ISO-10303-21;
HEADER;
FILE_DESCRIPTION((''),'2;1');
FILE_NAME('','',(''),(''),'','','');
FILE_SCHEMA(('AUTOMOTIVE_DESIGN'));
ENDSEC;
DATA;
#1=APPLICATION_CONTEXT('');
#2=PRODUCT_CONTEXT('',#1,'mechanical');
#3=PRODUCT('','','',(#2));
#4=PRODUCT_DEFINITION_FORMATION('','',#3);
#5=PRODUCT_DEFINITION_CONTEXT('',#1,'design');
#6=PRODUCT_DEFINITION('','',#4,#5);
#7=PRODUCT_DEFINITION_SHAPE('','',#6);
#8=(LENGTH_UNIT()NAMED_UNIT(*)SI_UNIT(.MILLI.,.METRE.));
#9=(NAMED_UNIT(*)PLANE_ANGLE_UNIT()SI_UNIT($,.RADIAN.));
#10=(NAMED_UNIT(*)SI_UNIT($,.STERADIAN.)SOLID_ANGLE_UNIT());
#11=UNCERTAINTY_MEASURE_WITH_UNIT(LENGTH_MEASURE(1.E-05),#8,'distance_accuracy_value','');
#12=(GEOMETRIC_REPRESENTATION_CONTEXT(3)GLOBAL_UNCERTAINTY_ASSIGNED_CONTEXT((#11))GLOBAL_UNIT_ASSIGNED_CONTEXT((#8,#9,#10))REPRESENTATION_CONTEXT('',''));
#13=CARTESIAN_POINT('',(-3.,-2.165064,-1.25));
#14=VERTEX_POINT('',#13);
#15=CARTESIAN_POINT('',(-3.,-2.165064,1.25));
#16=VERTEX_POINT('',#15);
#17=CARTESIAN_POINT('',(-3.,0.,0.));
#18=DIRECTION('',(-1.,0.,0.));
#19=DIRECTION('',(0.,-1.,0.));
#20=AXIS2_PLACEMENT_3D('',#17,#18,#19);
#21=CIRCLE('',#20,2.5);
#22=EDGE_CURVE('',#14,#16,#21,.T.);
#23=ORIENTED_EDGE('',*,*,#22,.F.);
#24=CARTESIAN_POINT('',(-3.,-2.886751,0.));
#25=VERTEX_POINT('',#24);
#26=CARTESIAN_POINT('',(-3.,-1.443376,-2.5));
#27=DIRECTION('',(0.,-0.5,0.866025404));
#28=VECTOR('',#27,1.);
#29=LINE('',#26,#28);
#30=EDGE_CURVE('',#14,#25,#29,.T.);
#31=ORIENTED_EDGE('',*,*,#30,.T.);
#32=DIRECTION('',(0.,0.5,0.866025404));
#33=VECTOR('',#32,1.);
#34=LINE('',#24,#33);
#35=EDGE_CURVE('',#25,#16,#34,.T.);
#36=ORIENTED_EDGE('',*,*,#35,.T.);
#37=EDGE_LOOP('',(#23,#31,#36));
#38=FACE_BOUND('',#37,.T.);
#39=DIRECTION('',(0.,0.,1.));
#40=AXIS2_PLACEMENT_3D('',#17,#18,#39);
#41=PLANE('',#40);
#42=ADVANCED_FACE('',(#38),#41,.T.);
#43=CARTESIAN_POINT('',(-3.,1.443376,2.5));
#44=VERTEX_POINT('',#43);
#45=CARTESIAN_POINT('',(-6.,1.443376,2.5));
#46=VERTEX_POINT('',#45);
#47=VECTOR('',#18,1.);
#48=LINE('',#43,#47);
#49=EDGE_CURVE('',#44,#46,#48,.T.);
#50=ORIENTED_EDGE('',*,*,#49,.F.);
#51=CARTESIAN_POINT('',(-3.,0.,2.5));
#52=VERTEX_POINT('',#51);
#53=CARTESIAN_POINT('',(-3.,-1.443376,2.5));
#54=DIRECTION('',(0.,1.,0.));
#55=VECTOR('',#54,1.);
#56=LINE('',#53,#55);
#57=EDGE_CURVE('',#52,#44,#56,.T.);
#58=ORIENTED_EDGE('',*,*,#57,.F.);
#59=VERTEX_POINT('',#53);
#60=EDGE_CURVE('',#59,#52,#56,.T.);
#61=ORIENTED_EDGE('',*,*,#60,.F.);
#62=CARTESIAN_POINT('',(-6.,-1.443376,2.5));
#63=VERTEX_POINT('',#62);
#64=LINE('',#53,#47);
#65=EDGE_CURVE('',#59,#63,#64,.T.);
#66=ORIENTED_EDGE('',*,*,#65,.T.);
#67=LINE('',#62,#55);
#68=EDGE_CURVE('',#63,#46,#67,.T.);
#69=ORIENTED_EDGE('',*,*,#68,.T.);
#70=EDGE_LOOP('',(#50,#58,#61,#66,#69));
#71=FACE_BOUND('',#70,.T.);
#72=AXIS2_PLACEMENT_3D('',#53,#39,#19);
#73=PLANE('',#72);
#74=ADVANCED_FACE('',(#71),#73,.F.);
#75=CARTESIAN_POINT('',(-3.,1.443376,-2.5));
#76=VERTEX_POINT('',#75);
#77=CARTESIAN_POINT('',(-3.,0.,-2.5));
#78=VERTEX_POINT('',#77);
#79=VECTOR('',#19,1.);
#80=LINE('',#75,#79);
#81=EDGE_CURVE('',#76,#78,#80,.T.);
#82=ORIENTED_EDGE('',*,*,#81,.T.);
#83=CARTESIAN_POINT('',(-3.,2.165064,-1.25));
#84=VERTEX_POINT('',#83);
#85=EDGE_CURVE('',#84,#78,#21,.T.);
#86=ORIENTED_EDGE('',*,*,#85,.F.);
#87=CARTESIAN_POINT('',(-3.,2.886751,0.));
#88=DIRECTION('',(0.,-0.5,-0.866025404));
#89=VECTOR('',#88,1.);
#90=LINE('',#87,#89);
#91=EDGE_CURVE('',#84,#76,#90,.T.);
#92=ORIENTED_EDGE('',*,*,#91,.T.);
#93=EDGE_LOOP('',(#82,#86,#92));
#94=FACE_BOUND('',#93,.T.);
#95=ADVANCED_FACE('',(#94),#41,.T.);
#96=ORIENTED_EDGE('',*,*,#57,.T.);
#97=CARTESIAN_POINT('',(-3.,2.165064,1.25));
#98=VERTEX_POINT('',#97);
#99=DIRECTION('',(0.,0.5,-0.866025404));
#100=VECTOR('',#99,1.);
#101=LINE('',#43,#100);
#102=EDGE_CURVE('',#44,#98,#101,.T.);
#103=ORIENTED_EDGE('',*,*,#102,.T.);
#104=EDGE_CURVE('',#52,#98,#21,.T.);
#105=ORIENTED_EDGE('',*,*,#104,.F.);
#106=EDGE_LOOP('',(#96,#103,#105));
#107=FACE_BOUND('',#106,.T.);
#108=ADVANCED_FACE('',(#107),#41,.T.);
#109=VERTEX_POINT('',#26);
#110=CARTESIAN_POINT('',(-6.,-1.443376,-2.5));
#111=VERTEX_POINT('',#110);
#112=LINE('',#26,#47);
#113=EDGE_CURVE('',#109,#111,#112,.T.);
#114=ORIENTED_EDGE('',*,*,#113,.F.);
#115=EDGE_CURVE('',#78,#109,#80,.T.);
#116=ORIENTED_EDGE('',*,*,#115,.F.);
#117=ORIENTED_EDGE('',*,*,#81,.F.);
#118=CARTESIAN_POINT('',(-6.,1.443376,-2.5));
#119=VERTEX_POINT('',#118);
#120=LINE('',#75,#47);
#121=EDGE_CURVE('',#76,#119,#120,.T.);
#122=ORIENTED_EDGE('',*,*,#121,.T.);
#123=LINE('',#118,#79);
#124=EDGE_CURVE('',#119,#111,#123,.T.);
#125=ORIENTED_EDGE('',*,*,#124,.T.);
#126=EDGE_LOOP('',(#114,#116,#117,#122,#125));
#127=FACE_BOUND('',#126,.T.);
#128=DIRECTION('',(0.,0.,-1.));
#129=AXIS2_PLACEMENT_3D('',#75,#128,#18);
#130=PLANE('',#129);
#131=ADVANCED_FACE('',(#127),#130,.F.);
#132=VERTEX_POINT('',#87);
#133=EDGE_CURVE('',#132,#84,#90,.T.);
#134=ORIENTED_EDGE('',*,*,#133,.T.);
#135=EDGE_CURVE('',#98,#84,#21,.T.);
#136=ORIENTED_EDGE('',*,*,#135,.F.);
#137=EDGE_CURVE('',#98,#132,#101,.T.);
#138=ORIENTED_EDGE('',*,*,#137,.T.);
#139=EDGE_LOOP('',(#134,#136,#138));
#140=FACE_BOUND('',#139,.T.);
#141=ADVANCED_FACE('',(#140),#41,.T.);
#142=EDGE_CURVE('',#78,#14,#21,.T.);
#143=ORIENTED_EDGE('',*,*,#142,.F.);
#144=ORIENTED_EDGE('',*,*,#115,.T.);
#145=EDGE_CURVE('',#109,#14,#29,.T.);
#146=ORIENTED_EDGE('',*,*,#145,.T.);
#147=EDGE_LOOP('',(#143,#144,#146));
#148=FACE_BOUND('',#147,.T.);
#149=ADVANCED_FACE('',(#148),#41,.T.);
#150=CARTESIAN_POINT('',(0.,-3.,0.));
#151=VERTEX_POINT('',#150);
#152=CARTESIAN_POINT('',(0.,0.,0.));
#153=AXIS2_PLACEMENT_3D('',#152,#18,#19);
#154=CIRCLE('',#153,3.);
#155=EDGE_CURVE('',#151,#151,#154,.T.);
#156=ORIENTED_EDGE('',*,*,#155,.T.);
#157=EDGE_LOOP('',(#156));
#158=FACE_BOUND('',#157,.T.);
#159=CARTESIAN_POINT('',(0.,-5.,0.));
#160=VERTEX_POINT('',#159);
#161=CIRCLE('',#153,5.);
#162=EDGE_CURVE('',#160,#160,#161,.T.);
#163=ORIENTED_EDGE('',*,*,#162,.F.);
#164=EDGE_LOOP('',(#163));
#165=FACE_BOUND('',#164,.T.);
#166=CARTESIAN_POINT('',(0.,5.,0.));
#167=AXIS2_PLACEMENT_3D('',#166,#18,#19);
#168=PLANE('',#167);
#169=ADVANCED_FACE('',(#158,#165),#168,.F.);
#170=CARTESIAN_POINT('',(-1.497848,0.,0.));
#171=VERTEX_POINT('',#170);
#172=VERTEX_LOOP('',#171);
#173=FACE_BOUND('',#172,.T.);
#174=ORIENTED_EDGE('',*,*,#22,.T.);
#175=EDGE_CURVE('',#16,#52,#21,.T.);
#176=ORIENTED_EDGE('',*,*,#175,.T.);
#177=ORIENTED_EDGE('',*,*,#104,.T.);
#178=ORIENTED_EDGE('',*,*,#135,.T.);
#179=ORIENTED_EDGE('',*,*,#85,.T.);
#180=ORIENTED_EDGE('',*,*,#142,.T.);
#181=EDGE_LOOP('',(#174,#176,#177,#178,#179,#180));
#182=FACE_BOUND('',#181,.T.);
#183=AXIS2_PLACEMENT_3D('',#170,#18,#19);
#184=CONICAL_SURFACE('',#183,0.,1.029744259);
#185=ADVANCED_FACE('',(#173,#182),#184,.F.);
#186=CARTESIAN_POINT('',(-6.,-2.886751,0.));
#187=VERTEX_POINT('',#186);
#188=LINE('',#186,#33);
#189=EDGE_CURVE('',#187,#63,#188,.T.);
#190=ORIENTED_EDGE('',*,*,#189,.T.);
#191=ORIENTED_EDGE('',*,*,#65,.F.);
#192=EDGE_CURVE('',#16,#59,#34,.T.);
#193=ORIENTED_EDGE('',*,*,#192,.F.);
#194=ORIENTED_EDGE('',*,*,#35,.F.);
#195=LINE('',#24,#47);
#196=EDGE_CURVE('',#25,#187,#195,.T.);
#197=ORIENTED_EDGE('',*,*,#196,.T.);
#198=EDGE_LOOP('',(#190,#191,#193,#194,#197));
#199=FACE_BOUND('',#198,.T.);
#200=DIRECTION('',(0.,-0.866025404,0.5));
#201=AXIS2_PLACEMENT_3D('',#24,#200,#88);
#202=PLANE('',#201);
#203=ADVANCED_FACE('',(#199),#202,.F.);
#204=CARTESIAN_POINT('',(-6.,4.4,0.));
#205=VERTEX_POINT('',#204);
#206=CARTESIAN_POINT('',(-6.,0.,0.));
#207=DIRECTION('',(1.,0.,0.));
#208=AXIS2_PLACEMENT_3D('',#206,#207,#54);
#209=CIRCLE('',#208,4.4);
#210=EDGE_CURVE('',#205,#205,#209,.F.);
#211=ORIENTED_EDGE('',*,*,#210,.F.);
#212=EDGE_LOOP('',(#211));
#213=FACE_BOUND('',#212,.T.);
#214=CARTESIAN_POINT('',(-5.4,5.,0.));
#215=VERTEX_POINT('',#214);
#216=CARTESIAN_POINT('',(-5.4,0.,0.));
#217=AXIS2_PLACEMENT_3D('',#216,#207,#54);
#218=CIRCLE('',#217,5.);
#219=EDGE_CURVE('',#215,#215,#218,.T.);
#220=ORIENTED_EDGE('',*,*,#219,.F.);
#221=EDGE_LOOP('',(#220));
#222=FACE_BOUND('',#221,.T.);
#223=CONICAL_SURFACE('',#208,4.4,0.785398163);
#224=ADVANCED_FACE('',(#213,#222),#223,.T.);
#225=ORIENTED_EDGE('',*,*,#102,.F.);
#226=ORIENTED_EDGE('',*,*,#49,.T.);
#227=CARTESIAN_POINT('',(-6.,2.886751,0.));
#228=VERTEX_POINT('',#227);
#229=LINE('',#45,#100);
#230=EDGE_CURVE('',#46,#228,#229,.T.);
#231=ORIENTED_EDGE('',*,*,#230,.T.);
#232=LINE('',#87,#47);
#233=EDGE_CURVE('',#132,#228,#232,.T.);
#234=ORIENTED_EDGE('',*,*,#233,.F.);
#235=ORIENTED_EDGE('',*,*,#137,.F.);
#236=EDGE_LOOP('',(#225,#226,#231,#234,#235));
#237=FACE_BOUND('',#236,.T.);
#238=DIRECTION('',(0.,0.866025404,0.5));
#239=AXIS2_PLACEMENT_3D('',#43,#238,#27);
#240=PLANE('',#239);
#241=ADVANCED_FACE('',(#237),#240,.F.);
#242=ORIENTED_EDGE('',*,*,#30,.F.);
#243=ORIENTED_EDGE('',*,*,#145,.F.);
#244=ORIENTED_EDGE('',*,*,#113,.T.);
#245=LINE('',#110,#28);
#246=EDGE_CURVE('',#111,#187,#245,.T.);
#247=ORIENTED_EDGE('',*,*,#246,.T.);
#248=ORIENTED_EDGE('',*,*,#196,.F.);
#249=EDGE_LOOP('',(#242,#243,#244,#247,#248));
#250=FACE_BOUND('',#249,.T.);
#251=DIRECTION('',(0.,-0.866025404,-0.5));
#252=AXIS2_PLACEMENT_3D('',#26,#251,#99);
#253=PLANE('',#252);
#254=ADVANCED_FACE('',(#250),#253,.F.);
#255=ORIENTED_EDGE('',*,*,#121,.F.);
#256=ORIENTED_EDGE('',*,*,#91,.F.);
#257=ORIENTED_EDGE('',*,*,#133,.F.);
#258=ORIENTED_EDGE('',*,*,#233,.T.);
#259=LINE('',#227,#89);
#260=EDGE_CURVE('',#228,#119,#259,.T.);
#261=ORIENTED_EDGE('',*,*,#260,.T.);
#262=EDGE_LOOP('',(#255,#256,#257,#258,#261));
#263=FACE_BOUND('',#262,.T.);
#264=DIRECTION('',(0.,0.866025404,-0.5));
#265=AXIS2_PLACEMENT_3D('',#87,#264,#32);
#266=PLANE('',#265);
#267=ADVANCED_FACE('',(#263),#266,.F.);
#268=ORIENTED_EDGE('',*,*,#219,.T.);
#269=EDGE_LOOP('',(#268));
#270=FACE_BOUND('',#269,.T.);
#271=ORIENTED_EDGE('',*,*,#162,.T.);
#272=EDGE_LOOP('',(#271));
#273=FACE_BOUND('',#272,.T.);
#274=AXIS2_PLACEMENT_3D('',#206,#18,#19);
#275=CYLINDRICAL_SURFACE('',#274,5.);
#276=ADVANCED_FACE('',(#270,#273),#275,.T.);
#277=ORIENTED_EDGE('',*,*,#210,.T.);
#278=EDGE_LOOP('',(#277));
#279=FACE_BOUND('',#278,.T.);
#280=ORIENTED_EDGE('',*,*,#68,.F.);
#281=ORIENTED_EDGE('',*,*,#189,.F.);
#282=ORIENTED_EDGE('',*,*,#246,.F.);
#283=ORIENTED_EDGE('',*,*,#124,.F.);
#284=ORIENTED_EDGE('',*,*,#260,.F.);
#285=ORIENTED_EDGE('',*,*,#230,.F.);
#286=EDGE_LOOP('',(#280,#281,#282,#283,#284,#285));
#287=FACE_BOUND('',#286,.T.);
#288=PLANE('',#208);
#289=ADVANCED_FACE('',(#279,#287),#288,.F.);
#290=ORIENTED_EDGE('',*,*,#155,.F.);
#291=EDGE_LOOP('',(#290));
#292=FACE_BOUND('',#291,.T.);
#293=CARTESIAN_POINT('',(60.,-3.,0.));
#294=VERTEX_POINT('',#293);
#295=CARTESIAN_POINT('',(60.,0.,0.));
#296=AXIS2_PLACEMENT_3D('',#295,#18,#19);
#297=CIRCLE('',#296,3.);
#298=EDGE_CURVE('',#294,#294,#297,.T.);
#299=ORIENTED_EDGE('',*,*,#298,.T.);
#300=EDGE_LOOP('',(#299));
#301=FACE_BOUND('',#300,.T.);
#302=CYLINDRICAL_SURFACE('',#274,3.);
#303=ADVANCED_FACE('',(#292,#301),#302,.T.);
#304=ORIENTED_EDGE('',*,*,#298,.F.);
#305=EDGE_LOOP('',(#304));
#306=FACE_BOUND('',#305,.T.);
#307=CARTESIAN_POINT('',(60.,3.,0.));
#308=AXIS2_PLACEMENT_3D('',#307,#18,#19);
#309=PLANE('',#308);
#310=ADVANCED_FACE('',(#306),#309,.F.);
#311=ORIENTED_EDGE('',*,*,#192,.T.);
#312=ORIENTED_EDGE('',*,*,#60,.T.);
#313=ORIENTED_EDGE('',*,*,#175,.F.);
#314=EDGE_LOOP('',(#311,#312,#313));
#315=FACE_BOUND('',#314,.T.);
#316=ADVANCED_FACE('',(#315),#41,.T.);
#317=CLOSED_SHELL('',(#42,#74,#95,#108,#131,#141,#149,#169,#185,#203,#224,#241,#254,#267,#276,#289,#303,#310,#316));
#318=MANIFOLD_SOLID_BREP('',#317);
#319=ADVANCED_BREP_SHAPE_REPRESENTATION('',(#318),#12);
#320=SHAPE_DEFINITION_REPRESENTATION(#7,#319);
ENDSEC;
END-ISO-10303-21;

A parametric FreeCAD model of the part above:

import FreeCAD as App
import Part
import Sketcher
from FreeCAD import Vector
Q = App.Units.Quantity


def edges_at(feature, points):
    """Names of the edges that pass closest to the given points."""
    edges = feature.Shape.Edges
    near = lambda p: min(range(len(edges)), key=lambda i: edges[i].distToShape(Part.Vertex(*p))[0])
    return sorted({f"Edge{near(p) + 1}" for p in points})

doc = App.newDocument("Part")
body = doc.addObject("PartDesign::Body", "Body")

sketch1 = body.newObject("Sketcher::SketchObject", "Sketch")
sketch1.AttachmentSupport = (doc.getObject("XY_Plane"), [""])
sketch1.MapMode = "FlatFace"
sketch1.addGeometry(Part.LineSegment(Vector(-6, 5, 0), Vector(-6, 0, 0)), False)
sketch1.addGeometry(Part.LineSegment(Vector(-6, 0, 0), Vector(60, 0, 0)), False)
sketch1.addGeometry(Part.LineSegment(Vector(60, 0, 0), Vector(60, 3, 0)), False)
sketch1.addGeometry(Part.LineSegment(Vector(60, 3, 0), Vector(0, 3, 0)), False)
sketch1.addGeometry(Part.LineSegment(Vector(0, 3, 0), Vector(0, 5, 0)), False)
sketch1.addGeometry(Part.LineSegment(Vector(0, 5, 0), Vector(-6, 5, 0)), False)
sketch1.addConstraint(Sketcher.Constraint("Coincident", 0, 2, 1, 1))
sketch1.addConstraint(Sketcher.Constraint("Coincident", 1, 2, 2, 1))
sketch1.addConstraint(Sketcher.Constraint("Coincident", 2, 2, 3, 1))
sketch1.addConstraint(Sketcher.Constraint("Coincident", 3, 2, 4, 1))
sketch1.addConstraint(Sketcher.Constraint("Coincident", 4, 2, 5, 1))
sketch1.addConstraint(Sketcher.Constraint("Coincident", 5, 2, 0, 1))
sketch1.addConstraint(Sketcher.Constraint("Vertical", 0))
sketch1.addConstraint(Sketcher.Constraint("Horizontal", 1))
sketch1.addConstraint(Sketcher.Constraint("Vertical", 2))
sketch1.addConstraint(Sketcher.Constraint("Horizontal", 3))
sketch1.addConstraint(Sketcher.Constraint("Vertical", 4))
sketch1.addConstraint(Sketcher.Constraint("Horizontal", 5))
sketch1.addConstraint(Sketcher.Constraint("PointOnObject", 0, 2, -1))
sketch1.addConstraint(Sketcher.Constraint("PointOnObject", 3, 2, -2))
sketch1.addConstraint(Sketcher.Constraint("DistanceX", 1, 1, 1, 2, 66.0))
sketch1.addConstraint(Sketcher.Constraint("DistanceX", 3, 2, 3, 1, 60.0))
sketch1.addConstraint(Sketcher.Constraint("DistanceY", 0, 2, 0, 1, 5.0))
sketch1.addConstraint(Sketcher.Constraint("DistanceY", 2, 1, 2, 2, 3.0))
revolution = body.newObject("PartDesign::Revolution", "Revolution")
revolution.Profile = sketch1
revolution.ReferenceAxis = (sketch1, ["H_Axis"])
revolution.Angle = 360
doc.recompute()

chamfer = body.newObject("PartDesign::Chamfer", "Chamfer")
chamfer.Base = (revolution, edges_at(revolution, [(-6, 5, 0)]))
chamfer.Size = 0.6

sketch2 = body.newObject("Sketcher::SketchObject", "Sketch001")
sketch2.AttachmentSupport = (doc.getObject("XY_Plane"), [""])
sketch2.MapMode = "FlatFace"
sketch2.addGeometry(Part.LineSegment(Vector(-1.5, 0, 0), Vector(-3, 2.5, 0)), False)
sketch2.addGeometry(Part.LineSegment(Vector(-3, 2.5, 0), Vector(-6, 2.5, 0)), False)
sketch2.addGeometry(Part.LineSegment(Vector(-6, 2.5, 0), Vector(-6, 0, 0)), False)
sketch2.addGeometry(Part.LineSegment(Vector(-6, 0, 0), Vector(-1.5, 0, 0)), False)
sketch2.addConstraint(Sketcher.Constraint("Coincident", 0, 2, 1, 1))
sketch2.addConstraint(Sketcher.Constraint("Coincident", 1, 2, 2, 1))
sketch2.addConstraint(Sketcher.Constraint("Coincident", 2, 2, 3, 1))
sketch2.addConstraint(Sketcher.Constraint("Coincident", 3, 2, 0, 1))
sketch2.addConstraint(Sketcher.Constraint("Horizontal", 1))
sketch2.addConstraint(Sketcher.Constraint("Vertical", 2))
sketch2.addConstraint(Sketcher.Constraint("Horizontal", 3))
sketch2.addConstraint(Sketcher.Constraint("PointOnObject", 2, 2, -1))
sketch2.addConstraint(Sketcher.Constraint("DistanceX", 1, 2, 1, 1, 3.0))
sketch2.addConstraint(Sketcher.Constraint("Angle", 0, Q("121 deg")))
sketch2.addConstraint(Sketcher.Constraint("DistanceY", 2, 2, 2, 1, 2.5))
sketch2.addConstraint(Sketcher.Constraint("DistanceX", 0, 2, -1, 1, 3.0))
groove = body.newObject("PartDesign::Groove", "Groove")
groove.Profile = sketch2
groove.ReferenceAxis = (sketch2, ["H_Axis"])
groove.Angle = 360

sketch3 = body.newObject("Sketcher::SketchObject", "Sketch002")
sketch3.AttachmentSupport = (doc.getObject("YZ_Plane"), [""])
sketch3.MapMode = "FlatFace"
sketch3.AttachmentOffset = App.Placement(Vector(0, 0, -6), App.Rotation())
sketch3.addGeometry(Part.LineSegment(Vector(2.9, 0, 0), Vector(1.4, -2.5, 0)), False)
sketch3.addGeometry(Part.LineSegment(Vector(1.4, -2.5, 0), Vector(-1.4, -2.5, 0)), False)
sketch3.addGeometry(Part.LineSegment(Vector(-1.4, -2.5, 0), Vector(-2.9, 0, 0)), False)
sketch3.addGeometry(Part.LineSegment(Vector(-2.9, 0, 0), Vector(-1.4, 2.5, 0)), False)
sketch3.addGeometry(Part.LineSegment(Vector(-1.4, 2.5, 0), Vector(1.4, 2.5, 0)), False)
sketch3.addGeometry(Part.LineSegment(Vector(1.4, 2.5, 0), Vector(2.9, 0, 0)), False)
sketch3.addConstraint(Sketcher.Constraint("Coincident", 0, 2, 1, 1))
sketch3.addConstraint(Sketcher.Constraint("Coincident", 1, 2, 2, 1))
sketch3.addConstraint(Sketcher.Constraint("Coincident", 2, 2, 3, 1))
sketch3.addConstraint(Sketcher.Constraint("Coincident", 3, 2, 4, 1))
sketch3.addConstraint(Sketcher.Constraint("Coincident", 4, 2, 5, 1))
sketch3.addConstraint(Sketcher.Constraint("Coincident", 5, 2, 0, 1))
sketch3.addConstraint(Sketcher.Constraint("Horizontal", 1))
sketch3.addConstraint(Sketcher.Constraint("Horizontal", 4))
sketch3.addConstraint(Sketcher.Constraint("Symmetric", 0, 2, 3, 2, -1, 1))
sketch3.addConstraint(Sketcher.Constraint("Symmetric", 2, 2, 5, 2, -1, 1))
sketch3.addConstraint(Sketcher.Constraint("PointOnObject", 2, 2, -1))
sketch3.addConstraint(Sketcher.Constraint("Parallel", 2, 5))
sketch3.addConstraint(Sketcher.Constraint("Vertical", 1, 2, 3, 2))
sketch3.addConstraint(Sketcher.Constraint("Angle", 0, Q("-120 deg")))
sketch3.addConstraint(Sketcher.Constraint("DistanceY", 1, 2, 3, 2, 5.0))
sketch3.addConstraint(Sketcher.Constraint("DistanceX", 1, 2, 1, 1, 2.886751))
pocket1 = body.newObject("PartDesign::Pocket", "Pocket")
pocket1.Profile = sketch3
pocket1.Length = 3
pocket1.Reversed = True

doc.recompute()
